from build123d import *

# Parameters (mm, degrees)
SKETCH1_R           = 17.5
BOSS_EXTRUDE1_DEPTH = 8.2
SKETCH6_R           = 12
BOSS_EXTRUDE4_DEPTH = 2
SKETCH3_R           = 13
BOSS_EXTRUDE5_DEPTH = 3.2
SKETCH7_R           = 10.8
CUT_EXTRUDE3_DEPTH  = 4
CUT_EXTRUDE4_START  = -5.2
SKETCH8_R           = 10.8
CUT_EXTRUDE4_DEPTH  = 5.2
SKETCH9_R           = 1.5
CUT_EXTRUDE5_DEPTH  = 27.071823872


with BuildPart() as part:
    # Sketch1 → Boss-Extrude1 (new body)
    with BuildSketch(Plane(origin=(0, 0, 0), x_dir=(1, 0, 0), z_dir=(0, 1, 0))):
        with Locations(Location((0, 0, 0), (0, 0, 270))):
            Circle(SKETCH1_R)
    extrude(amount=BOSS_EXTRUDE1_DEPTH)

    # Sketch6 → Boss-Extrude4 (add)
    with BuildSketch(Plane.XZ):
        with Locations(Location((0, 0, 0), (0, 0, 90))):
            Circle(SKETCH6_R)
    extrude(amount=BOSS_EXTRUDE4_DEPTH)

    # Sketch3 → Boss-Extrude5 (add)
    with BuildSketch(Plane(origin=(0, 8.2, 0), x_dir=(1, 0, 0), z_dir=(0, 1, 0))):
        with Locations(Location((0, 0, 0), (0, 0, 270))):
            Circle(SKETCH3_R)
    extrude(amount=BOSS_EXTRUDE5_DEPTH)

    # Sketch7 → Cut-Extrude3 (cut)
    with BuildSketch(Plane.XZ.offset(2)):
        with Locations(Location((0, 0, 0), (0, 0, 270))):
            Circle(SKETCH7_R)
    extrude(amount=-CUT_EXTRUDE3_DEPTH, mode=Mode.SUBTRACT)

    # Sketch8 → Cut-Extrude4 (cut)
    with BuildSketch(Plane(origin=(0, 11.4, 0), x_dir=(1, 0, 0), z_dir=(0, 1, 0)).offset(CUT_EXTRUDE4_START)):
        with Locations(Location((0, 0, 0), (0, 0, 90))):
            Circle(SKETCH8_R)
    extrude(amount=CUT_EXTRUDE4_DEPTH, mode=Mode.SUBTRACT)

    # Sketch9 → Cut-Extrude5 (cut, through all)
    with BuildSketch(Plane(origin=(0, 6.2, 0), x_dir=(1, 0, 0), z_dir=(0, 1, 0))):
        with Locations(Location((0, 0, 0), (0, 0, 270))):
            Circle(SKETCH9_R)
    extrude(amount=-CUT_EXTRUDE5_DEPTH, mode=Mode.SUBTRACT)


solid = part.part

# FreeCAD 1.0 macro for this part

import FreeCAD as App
import Part
import Sketcher
from FreeCAD import Vector

doc = App.newDocument("Part")
body = doc.addObject("PartDesign::Body", "Body")

# Sketch on XZ plane
sketch1 = body.newObject("Sketcher::SketchObject", "Sketch")
sketch1.AttachmentSupport = (doc.getObject("XZ_Plane"), [""])
sketch1.MapMode = "FlatFace"
sketch1.addGeometry(Part.Circle(Vector(0, 0, 0), Vector(0, 0, 1), 18), False)
sketch1.addConstraint([
    Sketcher.Constraint("Coincident", 0, 3, -1, 1),
    Sketcher.Constraint("Diameter", 0, 35.0),
])
pad1 = body.newObject("PartDesign::Pad", "Pad")
pad1.Profile = sketch1
pad1.Length = 8.2
pad1.Reversed = True

# Sketch on XZ plane
sketch2 = body.newObject("Sketcher::SketchObject", "Sketch001")
sketch2.AttachmentSupport = (doc.getObject("XZ_Plane"), [""])
sketch2.MapMode = "FlatFace"
sketch2.addGeometry(Part.Circle(Vector(0, 0, 0), Vector(0, 0, 1), 12), False)
sketch2.addConstraint([
    Sketcher.Constraint("Coincident", 0, 3, -1, 1),
    Sketcher.Constraint("Diameter", 0, 24.0),
])
pad2 = body.newObject("PartDesign::Pad", "Pad001")
pad2.Profile = sketch2
pad2.Length = 2

# Sketch on XZ plane
sketch3 = body.newObject("Sketcher::SketchObject", "Sketch002")
sketch3.AttachmentSupport = (doc.getObject("XZ_Plane"), [""])
sketch3.MapMode = "FlatFace"
sketch3.AttachmentOffset = App.Placement(Vector(0, 0, -8.2), App.Rotation())
sketch3.addGeometry(Part.Circle(Vector(0, 0, 0), Vector(0, 0, 1), 13), False)
sketch3.addConstraint([
    Sketcher.Constraint("Coincident", 0, 3, -1, 1),
    Sketcher.Constraint("Diameter", 0, 26.0),
])
pad3 = body.newObject("PartDesign::Pad", "Pad002")
pad3.Profile = sketch3
pad3.Length = 3.2
pad3.Reversed = True

# Sketch on XZ plane
sketch4 = body.newObject("Sketcher::SketchObject", "Sketch003")
sketch4.AttachmentSupport = (doc.getObject("XZ_Plane"), [""])
sketch4.MapMode = "FlatFace"
sketch4.AttachmentOffset = App.Placement(Vector(0, 0, 2), App.Rotation())
sketch4.addGeometry(Part.Circle(Vector(0, 0, 0), Vector(0, 0, 1), 11), False)
sketch4.addConstraint([
    Sketcher.Constraint("Coincident", 0, 3, -1, 1),
    Sketcher.Constraint("Diameter", 0, 21.6),
])
pocket1 = body.newObject("PartDesign::Pocket", "Pocket")
pocket1.Profile = sketch4
pocket1.Length = 4

# Sketch on XZ plane
sketch5 = body.newObject("Sketcher::SketchObject", "Sketch004")
sketch5.AttachmentSupport = (doc.getObject("XZ_Plane"), [""])
sketch5.MapMode = "FlatFace"
sketch5.AttachmentOffset = App.Placement(Vector(0, 0, -6.2), App.Rotation())
sketch5.addGeometry(Part.Circle(Vector(0, 0, 0), Vector(0, 0, 1), 11), False)
sketch5.addConstraint([
    Sketcher.Constraint("Coincident", 0, 3, -1, 1),
    Sketcher.Constraint("Diameter", 0, 21.6),
])
pocket2 = body.newObject("PartDesign::Pocket", "Pocket001")
pocket2.Profile = sketch5
pocket2.Length = 5.2

# Sketch on XZ plane
sketch6 = body.newObject("Sketcher::SketchObject", "Sketch005")
sketch6.AttachmentSupport = (doc.getObject("XZ_Plane"), [""])
sketch6.MapMode = "FlatFace"
sketch6.AttachmentOffset = App.Placement(Vector(0, 0, -6.2), App.Rotation())
sketch6.addGeometry(Part.Circle(Vector(0, 0, 0), Vector(0, 0, 1), 1.5), False)
sketch6.addConstraint([
    Sketcher.Constraint("Coincident", 0, 3, -1, 1),
    Sketcher.Constraint("Diameter", 0, 3.0),
])
pocket3 = body.newObject("PartDesign::Pocket", "Pocket002")
pocket3.Profile = sketch6
pocket3.Type = "ThroughAll"
pocket3.Reversed = True

doc.recompute()
